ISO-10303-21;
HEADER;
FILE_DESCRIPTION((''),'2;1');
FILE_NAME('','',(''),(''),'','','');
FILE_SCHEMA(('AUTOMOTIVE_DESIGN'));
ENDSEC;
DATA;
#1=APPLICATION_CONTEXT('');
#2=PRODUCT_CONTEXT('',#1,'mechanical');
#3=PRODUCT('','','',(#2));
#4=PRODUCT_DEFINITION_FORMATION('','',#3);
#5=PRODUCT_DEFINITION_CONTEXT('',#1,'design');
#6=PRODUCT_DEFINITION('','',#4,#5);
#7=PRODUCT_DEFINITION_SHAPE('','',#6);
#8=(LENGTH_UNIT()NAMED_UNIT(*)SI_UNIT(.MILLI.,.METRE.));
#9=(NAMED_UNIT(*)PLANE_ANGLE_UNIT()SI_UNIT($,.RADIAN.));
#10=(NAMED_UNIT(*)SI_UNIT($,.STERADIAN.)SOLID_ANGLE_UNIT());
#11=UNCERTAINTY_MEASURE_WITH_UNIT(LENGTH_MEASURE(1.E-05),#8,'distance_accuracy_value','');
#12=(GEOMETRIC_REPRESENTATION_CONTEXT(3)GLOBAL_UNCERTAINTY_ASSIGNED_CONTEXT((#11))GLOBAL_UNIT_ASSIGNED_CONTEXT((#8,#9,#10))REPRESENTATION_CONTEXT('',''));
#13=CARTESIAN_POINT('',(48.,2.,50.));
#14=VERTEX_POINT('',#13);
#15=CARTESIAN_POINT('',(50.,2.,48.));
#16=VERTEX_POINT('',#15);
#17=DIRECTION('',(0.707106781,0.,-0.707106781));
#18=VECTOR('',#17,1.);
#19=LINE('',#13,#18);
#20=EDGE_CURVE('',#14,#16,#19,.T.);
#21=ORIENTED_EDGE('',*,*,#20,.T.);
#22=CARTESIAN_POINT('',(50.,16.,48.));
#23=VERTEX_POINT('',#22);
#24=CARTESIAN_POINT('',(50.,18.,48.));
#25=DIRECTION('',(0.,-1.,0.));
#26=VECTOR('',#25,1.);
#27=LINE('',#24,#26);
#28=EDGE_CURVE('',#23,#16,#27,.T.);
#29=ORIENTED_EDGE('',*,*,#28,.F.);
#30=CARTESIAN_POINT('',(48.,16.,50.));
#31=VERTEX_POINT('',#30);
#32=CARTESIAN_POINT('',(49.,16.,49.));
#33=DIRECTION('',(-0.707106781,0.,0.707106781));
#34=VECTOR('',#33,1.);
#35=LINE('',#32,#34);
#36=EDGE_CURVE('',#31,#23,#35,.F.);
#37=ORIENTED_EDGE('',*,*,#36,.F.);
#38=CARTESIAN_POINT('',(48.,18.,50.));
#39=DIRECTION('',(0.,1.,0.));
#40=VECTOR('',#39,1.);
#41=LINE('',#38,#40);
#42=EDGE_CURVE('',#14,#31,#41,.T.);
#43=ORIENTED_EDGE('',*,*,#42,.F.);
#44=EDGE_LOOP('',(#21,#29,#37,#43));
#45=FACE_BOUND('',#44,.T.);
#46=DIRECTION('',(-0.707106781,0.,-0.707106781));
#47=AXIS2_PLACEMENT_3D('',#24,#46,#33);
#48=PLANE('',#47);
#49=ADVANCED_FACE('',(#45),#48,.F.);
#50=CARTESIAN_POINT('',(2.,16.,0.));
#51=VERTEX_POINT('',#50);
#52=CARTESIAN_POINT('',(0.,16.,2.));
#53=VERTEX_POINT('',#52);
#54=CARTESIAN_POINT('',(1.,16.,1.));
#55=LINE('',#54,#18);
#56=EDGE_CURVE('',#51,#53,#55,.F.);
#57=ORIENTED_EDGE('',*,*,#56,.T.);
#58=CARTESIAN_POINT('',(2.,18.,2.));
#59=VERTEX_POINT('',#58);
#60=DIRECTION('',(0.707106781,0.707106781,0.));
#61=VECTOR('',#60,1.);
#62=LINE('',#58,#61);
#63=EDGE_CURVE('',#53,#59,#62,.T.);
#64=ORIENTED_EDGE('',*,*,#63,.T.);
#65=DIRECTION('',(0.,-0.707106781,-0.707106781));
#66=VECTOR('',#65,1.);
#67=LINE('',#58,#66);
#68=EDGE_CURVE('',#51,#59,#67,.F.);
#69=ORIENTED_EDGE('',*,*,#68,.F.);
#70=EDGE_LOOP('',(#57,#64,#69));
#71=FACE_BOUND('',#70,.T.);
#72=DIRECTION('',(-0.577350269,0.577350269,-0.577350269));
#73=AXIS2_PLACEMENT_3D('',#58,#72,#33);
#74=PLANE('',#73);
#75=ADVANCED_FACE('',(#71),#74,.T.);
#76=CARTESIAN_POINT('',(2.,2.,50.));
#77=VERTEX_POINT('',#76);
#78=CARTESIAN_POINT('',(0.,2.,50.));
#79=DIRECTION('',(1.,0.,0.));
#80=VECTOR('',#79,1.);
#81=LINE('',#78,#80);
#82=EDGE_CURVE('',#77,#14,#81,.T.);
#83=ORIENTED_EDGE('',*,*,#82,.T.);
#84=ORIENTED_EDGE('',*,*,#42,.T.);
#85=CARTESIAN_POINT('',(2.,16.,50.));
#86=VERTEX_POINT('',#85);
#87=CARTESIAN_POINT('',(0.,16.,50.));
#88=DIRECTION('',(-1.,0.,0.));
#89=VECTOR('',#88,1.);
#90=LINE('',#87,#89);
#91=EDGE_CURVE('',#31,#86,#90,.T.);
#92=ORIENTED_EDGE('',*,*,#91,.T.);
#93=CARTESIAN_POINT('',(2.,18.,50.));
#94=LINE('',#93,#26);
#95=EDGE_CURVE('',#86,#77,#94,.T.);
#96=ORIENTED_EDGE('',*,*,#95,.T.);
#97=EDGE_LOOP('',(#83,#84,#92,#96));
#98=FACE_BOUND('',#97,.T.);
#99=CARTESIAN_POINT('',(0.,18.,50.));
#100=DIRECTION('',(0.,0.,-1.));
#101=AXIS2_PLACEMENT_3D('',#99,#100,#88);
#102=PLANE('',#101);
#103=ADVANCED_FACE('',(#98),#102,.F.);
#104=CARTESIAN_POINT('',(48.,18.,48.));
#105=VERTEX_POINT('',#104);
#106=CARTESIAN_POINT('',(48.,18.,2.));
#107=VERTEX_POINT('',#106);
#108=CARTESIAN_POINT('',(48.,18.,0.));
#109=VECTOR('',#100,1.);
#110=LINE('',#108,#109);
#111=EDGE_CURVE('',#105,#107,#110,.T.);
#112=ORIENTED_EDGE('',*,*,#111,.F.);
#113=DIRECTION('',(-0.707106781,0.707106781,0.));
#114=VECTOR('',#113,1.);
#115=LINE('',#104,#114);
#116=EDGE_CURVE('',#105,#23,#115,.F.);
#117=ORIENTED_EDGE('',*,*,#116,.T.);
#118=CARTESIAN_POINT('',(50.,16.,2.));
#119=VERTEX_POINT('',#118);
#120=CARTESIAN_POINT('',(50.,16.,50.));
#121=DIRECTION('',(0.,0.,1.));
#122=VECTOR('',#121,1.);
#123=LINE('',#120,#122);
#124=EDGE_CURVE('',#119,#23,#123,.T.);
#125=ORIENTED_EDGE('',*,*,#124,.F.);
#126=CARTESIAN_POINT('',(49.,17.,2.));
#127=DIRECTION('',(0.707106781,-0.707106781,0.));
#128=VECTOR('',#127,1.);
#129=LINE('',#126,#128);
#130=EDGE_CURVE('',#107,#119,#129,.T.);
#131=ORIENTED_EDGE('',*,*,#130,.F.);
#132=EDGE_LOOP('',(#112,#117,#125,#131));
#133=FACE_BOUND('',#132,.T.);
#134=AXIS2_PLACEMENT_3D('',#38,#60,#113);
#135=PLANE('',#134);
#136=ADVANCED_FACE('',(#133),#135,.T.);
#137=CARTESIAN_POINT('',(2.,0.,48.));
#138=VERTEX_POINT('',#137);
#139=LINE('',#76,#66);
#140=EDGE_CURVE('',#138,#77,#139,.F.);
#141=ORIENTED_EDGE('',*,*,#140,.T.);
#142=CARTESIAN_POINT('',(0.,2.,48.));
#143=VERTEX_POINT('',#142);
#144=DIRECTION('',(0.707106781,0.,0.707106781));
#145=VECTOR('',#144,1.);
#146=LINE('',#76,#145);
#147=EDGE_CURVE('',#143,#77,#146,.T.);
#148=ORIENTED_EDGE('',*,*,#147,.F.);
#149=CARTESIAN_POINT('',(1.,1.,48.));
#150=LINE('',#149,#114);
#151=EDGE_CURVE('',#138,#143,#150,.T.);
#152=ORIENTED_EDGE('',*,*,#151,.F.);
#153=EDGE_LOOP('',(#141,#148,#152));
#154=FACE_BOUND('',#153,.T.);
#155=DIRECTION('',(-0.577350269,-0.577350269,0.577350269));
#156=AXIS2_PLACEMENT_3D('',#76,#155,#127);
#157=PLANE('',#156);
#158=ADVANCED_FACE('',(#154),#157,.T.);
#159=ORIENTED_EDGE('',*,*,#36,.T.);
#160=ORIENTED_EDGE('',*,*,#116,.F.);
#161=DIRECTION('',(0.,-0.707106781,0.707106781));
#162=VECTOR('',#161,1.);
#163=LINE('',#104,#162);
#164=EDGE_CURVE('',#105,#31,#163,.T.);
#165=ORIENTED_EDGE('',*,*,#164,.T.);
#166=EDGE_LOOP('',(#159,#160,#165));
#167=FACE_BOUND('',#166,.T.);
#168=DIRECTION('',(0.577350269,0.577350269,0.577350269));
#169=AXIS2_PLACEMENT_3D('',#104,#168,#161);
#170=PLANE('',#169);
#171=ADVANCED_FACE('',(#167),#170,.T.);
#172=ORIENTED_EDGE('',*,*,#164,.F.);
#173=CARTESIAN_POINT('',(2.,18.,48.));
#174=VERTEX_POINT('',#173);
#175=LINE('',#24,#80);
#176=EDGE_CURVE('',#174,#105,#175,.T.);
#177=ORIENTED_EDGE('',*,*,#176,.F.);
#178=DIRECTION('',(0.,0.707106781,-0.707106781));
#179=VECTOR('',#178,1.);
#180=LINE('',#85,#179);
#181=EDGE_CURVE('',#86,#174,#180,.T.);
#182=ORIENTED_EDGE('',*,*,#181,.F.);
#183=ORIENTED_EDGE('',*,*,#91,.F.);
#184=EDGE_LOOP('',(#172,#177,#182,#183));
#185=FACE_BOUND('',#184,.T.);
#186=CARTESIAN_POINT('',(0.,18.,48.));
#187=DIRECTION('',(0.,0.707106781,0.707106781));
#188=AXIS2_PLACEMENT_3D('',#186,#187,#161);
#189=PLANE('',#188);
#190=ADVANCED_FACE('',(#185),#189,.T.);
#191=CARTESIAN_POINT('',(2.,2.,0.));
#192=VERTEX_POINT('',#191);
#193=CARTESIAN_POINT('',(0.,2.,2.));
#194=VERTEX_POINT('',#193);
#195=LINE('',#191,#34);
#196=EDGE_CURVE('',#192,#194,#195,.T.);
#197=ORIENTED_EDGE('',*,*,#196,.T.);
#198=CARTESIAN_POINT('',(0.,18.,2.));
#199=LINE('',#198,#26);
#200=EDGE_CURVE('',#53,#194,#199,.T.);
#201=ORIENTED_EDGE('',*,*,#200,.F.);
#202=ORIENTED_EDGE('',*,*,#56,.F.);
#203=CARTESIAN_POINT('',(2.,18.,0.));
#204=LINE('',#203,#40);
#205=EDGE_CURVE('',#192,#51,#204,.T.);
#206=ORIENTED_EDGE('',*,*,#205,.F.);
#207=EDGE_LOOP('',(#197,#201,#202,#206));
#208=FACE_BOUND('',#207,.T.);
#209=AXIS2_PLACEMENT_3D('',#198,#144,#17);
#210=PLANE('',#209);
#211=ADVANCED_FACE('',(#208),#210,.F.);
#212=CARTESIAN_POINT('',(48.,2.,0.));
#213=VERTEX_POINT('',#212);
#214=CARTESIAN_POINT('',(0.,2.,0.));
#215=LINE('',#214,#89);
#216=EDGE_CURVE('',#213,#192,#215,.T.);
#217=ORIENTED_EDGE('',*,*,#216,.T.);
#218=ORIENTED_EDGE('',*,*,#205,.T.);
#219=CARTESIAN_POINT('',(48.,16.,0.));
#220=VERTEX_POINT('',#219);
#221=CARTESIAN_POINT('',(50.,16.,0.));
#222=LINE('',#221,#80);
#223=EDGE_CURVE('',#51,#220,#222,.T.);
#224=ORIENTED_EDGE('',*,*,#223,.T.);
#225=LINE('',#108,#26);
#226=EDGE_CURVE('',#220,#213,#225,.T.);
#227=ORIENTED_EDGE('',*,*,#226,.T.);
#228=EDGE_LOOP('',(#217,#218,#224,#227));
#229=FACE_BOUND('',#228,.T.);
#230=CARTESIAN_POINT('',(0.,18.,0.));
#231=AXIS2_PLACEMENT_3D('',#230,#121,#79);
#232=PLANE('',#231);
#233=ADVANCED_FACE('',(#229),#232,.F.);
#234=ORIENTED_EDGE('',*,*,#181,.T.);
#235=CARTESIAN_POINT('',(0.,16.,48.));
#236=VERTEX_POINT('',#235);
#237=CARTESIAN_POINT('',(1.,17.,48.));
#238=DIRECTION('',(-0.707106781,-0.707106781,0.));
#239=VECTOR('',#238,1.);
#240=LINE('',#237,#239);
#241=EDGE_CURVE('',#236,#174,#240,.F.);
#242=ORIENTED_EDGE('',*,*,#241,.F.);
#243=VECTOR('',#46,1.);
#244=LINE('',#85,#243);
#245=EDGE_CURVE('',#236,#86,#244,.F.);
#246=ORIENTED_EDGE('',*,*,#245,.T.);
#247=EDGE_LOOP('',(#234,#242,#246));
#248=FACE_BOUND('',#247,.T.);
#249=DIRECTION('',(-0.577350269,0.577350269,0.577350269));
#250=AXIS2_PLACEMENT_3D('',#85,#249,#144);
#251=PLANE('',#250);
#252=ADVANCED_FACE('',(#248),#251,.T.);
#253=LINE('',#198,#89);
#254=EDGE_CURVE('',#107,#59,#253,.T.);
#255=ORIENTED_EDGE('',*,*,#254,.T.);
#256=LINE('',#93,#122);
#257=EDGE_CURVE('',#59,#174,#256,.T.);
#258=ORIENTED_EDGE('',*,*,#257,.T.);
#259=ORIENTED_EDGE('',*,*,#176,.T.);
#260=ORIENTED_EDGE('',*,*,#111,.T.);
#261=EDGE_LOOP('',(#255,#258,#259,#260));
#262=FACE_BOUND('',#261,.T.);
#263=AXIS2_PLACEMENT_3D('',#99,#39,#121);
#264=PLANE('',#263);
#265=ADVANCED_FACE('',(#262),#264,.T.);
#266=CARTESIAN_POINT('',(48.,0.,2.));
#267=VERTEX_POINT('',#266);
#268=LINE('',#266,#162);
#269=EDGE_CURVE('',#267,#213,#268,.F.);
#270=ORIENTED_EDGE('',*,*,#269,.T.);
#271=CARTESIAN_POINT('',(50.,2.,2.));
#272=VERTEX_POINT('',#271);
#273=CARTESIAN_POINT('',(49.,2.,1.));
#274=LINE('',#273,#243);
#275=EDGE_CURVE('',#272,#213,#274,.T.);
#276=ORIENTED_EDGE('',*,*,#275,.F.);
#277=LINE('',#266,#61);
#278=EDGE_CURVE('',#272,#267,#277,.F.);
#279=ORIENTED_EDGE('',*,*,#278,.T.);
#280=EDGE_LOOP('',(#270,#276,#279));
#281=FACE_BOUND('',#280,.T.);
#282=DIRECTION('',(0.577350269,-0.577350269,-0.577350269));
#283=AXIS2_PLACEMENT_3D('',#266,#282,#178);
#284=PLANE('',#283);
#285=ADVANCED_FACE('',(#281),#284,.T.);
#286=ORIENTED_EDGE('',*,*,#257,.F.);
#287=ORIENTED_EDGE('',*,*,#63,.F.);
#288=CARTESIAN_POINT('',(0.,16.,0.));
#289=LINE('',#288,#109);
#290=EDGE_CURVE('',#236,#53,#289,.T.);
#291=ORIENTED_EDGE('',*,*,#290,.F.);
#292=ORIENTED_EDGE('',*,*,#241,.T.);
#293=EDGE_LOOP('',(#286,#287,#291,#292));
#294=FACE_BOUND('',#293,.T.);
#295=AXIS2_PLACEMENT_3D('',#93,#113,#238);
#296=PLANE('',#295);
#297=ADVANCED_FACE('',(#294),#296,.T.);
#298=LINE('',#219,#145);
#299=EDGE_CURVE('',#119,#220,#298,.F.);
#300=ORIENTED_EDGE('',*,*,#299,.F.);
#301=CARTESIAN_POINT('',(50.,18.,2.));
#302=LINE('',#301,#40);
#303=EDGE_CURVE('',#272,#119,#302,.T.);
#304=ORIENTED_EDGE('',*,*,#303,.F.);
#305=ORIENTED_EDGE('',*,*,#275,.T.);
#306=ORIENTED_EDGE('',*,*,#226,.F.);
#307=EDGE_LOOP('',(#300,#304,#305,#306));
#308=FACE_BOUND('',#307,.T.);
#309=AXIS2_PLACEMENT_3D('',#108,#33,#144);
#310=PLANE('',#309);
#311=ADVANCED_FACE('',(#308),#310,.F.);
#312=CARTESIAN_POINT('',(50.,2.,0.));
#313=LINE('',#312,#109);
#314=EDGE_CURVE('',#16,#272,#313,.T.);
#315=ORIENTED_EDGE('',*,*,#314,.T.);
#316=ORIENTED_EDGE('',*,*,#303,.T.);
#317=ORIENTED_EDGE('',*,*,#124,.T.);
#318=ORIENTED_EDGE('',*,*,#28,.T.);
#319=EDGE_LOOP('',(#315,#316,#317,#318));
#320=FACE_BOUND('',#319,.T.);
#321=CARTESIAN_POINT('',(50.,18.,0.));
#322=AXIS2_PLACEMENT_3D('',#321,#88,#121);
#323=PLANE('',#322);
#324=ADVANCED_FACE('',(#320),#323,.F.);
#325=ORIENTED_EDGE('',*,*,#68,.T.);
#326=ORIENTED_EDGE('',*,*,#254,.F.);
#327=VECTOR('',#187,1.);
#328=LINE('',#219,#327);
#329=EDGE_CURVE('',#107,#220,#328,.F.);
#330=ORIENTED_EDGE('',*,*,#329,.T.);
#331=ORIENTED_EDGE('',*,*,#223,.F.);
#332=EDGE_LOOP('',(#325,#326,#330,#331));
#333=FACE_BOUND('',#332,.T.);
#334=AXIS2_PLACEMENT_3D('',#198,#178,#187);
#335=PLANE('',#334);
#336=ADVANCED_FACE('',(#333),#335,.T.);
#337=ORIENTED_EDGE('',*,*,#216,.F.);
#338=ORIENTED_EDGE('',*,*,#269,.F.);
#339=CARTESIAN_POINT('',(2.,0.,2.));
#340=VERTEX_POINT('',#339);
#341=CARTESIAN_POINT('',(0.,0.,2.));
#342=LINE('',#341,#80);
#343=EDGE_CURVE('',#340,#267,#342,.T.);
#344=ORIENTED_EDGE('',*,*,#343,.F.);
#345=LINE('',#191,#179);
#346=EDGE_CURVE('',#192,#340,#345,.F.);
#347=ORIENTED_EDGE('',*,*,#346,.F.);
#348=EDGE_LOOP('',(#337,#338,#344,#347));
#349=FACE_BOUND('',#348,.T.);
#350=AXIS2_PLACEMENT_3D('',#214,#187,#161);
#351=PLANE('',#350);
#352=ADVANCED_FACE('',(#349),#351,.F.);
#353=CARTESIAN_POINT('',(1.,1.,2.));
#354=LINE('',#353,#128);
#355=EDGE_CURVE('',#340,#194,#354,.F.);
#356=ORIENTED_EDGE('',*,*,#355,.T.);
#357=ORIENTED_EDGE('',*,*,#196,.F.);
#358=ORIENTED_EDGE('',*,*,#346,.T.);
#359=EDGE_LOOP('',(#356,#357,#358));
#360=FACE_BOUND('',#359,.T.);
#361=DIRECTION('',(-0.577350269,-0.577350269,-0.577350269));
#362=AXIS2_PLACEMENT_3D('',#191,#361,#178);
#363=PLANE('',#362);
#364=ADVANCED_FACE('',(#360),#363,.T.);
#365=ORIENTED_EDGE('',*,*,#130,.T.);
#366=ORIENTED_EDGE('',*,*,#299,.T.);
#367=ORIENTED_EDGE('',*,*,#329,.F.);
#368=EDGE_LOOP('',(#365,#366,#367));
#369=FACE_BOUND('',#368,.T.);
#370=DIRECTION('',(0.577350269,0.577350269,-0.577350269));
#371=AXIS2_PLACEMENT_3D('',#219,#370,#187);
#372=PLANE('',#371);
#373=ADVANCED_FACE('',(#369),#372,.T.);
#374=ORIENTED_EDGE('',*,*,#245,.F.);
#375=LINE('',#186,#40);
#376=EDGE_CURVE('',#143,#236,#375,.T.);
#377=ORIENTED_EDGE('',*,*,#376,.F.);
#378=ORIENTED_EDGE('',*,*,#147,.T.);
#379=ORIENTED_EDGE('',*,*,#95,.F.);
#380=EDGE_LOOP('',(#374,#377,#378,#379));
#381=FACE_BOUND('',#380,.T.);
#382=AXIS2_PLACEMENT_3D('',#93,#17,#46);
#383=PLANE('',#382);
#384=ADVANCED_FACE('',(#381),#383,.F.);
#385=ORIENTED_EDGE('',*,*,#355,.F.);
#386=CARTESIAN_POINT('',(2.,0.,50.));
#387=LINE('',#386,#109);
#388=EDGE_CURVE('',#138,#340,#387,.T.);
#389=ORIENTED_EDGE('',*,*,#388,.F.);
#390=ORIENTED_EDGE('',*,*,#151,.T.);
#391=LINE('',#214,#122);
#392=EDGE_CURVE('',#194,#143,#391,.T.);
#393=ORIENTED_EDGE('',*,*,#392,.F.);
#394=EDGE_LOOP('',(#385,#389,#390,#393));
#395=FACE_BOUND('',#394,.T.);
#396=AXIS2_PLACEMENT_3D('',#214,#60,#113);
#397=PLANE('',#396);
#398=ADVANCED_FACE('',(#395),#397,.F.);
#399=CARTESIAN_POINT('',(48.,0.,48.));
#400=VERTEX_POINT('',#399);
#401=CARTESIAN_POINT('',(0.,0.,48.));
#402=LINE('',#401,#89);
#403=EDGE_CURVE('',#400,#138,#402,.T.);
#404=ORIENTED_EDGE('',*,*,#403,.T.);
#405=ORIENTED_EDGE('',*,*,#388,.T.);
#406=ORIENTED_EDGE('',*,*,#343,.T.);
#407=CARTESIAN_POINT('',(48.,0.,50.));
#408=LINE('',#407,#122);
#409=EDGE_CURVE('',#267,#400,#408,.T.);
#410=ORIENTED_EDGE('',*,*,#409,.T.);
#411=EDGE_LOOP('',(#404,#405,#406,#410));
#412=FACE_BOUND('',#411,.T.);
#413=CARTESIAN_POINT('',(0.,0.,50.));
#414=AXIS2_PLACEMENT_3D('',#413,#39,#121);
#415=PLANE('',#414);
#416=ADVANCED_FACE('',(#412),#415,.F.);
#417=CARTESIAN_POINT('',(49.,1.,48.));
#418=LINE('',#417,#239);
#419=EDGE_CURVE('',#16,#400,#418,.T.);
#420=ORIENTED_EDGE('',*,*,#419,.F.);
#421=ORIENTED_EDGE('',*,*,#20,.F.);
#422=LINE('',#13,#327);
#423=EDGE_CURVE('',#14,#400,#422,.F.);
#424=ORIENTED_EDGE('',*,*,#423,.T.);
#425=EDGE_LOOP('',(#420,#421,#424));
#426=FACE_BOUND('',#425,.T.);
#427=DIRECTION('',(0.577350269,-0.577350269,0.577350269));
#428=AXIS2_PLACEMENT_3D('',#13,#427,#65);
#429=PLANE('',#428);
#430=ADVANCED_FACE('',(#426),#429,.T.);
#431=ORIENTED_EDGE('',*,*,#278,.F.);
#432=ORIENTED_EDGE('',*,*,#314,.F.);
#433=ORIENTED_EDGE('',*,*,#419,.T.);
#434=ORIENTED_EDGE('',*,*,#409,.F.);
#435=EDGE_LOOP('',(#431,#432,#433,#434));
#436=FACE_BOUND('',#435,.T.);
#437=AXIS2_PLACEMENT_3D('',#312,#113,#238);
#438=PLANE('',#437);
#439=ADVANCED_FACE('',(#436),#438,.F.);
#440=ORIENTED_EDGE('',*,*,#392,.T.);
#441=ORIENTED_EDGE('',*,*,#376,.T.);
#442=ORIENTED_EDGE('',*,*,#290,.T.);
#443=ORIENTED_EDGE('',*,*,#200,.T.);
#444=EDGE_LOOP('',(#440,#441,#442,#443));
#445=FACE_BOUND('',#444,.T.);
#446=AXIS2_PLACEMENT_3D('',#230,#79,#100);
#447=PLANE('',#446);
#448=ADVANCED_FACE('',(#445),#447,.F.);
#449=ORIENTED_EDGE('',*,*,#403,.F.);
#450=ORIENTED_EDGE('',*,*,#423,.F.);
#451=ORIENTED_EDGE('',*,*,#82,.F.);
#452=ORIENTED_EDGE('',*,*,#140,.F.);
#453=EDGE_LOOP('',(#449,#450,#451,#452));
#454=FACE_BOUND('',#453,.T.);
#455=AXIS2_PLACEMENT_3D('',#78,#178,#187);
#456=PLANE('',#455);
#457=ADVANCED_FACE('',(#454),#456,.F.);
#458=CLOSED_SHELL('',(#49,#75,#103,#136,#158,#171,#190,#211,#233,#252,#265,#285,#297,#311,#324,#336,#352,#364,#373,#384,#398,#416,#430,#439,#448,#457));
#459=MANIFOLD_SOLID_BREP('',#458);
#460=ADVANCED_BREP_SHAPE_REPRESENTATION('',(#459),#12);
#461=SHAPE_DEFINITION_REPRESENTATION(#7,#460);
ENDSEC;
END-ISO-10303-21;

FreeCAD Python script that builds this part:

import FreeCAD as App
import Part
import Sketcher

V = App.Vector
Q = App.Units.Quantity


def add_polygon(sketch, points):
    """Adds a closed chain of lines whose ends are joined by coincident constraints."""
    first, n = sketch.GeometryCount, len(points)
    for a, b in zip(points, points[1:] + points[:1]):
        sketch.addGeometry(Part.LineSegment(App.Vector(*a, 0), App.Vector(*b, 0)), False)
    for i in range(n):
        sketch.addConstraint(Sketcher.Constraint("Coincident", first + i, 2, first + (i + 1) % n, 1))

doc = App.newDocument("Part")
body = doc.addObject("PartDesign::Body", "Body")

sketch1 = body.newObject("Sketcher::SketchObject", "Sketch")
sketch1.AttachmentSupport = (doc.getObject("XZ_Plane"), [""])
sketch1.MapMode = "FlatFace"
add_polygon(sketch1, [(0, 0), (0, 50), (50, 50), (50, 0)])
sketch1.addConstraint(Sketcher.Constraint("Vertical", 0))
sketch1.addConstraint(Sketcher.Constraint("Horizontal", 1))
sketch1.addConstraint(Sketcher.Constraint("Vertical", 2))
sketch1.addConstraint(Sketcher.Constraint("Horizontal", 3))
sketch1.addConstraint(Sketcher.Constraint("Coincident", 3, 2, -1, 1))
sketch1.addConstraint(Sketcher.Constraint("Equal", 3, 0))
sketch1.addConstraint(Sketcher.Constraint("DistanceX", 1, 1, 1, 2, Q("50 mm")))
pad1 = body.newObject("PartDesign::Pad", "Pad")
pad1.Profile = sketch1
pad1.Length = 18
pad1.Reversed = True
doc.recompute()

chamfer = body.newObject("PartDesign::Chamfer", "Chamfer")
chamfer.Base = (pad1, ["Edge1"])
chamfer.UseAllEdges = True
chamfer.Size = 2

doc.recompute()
